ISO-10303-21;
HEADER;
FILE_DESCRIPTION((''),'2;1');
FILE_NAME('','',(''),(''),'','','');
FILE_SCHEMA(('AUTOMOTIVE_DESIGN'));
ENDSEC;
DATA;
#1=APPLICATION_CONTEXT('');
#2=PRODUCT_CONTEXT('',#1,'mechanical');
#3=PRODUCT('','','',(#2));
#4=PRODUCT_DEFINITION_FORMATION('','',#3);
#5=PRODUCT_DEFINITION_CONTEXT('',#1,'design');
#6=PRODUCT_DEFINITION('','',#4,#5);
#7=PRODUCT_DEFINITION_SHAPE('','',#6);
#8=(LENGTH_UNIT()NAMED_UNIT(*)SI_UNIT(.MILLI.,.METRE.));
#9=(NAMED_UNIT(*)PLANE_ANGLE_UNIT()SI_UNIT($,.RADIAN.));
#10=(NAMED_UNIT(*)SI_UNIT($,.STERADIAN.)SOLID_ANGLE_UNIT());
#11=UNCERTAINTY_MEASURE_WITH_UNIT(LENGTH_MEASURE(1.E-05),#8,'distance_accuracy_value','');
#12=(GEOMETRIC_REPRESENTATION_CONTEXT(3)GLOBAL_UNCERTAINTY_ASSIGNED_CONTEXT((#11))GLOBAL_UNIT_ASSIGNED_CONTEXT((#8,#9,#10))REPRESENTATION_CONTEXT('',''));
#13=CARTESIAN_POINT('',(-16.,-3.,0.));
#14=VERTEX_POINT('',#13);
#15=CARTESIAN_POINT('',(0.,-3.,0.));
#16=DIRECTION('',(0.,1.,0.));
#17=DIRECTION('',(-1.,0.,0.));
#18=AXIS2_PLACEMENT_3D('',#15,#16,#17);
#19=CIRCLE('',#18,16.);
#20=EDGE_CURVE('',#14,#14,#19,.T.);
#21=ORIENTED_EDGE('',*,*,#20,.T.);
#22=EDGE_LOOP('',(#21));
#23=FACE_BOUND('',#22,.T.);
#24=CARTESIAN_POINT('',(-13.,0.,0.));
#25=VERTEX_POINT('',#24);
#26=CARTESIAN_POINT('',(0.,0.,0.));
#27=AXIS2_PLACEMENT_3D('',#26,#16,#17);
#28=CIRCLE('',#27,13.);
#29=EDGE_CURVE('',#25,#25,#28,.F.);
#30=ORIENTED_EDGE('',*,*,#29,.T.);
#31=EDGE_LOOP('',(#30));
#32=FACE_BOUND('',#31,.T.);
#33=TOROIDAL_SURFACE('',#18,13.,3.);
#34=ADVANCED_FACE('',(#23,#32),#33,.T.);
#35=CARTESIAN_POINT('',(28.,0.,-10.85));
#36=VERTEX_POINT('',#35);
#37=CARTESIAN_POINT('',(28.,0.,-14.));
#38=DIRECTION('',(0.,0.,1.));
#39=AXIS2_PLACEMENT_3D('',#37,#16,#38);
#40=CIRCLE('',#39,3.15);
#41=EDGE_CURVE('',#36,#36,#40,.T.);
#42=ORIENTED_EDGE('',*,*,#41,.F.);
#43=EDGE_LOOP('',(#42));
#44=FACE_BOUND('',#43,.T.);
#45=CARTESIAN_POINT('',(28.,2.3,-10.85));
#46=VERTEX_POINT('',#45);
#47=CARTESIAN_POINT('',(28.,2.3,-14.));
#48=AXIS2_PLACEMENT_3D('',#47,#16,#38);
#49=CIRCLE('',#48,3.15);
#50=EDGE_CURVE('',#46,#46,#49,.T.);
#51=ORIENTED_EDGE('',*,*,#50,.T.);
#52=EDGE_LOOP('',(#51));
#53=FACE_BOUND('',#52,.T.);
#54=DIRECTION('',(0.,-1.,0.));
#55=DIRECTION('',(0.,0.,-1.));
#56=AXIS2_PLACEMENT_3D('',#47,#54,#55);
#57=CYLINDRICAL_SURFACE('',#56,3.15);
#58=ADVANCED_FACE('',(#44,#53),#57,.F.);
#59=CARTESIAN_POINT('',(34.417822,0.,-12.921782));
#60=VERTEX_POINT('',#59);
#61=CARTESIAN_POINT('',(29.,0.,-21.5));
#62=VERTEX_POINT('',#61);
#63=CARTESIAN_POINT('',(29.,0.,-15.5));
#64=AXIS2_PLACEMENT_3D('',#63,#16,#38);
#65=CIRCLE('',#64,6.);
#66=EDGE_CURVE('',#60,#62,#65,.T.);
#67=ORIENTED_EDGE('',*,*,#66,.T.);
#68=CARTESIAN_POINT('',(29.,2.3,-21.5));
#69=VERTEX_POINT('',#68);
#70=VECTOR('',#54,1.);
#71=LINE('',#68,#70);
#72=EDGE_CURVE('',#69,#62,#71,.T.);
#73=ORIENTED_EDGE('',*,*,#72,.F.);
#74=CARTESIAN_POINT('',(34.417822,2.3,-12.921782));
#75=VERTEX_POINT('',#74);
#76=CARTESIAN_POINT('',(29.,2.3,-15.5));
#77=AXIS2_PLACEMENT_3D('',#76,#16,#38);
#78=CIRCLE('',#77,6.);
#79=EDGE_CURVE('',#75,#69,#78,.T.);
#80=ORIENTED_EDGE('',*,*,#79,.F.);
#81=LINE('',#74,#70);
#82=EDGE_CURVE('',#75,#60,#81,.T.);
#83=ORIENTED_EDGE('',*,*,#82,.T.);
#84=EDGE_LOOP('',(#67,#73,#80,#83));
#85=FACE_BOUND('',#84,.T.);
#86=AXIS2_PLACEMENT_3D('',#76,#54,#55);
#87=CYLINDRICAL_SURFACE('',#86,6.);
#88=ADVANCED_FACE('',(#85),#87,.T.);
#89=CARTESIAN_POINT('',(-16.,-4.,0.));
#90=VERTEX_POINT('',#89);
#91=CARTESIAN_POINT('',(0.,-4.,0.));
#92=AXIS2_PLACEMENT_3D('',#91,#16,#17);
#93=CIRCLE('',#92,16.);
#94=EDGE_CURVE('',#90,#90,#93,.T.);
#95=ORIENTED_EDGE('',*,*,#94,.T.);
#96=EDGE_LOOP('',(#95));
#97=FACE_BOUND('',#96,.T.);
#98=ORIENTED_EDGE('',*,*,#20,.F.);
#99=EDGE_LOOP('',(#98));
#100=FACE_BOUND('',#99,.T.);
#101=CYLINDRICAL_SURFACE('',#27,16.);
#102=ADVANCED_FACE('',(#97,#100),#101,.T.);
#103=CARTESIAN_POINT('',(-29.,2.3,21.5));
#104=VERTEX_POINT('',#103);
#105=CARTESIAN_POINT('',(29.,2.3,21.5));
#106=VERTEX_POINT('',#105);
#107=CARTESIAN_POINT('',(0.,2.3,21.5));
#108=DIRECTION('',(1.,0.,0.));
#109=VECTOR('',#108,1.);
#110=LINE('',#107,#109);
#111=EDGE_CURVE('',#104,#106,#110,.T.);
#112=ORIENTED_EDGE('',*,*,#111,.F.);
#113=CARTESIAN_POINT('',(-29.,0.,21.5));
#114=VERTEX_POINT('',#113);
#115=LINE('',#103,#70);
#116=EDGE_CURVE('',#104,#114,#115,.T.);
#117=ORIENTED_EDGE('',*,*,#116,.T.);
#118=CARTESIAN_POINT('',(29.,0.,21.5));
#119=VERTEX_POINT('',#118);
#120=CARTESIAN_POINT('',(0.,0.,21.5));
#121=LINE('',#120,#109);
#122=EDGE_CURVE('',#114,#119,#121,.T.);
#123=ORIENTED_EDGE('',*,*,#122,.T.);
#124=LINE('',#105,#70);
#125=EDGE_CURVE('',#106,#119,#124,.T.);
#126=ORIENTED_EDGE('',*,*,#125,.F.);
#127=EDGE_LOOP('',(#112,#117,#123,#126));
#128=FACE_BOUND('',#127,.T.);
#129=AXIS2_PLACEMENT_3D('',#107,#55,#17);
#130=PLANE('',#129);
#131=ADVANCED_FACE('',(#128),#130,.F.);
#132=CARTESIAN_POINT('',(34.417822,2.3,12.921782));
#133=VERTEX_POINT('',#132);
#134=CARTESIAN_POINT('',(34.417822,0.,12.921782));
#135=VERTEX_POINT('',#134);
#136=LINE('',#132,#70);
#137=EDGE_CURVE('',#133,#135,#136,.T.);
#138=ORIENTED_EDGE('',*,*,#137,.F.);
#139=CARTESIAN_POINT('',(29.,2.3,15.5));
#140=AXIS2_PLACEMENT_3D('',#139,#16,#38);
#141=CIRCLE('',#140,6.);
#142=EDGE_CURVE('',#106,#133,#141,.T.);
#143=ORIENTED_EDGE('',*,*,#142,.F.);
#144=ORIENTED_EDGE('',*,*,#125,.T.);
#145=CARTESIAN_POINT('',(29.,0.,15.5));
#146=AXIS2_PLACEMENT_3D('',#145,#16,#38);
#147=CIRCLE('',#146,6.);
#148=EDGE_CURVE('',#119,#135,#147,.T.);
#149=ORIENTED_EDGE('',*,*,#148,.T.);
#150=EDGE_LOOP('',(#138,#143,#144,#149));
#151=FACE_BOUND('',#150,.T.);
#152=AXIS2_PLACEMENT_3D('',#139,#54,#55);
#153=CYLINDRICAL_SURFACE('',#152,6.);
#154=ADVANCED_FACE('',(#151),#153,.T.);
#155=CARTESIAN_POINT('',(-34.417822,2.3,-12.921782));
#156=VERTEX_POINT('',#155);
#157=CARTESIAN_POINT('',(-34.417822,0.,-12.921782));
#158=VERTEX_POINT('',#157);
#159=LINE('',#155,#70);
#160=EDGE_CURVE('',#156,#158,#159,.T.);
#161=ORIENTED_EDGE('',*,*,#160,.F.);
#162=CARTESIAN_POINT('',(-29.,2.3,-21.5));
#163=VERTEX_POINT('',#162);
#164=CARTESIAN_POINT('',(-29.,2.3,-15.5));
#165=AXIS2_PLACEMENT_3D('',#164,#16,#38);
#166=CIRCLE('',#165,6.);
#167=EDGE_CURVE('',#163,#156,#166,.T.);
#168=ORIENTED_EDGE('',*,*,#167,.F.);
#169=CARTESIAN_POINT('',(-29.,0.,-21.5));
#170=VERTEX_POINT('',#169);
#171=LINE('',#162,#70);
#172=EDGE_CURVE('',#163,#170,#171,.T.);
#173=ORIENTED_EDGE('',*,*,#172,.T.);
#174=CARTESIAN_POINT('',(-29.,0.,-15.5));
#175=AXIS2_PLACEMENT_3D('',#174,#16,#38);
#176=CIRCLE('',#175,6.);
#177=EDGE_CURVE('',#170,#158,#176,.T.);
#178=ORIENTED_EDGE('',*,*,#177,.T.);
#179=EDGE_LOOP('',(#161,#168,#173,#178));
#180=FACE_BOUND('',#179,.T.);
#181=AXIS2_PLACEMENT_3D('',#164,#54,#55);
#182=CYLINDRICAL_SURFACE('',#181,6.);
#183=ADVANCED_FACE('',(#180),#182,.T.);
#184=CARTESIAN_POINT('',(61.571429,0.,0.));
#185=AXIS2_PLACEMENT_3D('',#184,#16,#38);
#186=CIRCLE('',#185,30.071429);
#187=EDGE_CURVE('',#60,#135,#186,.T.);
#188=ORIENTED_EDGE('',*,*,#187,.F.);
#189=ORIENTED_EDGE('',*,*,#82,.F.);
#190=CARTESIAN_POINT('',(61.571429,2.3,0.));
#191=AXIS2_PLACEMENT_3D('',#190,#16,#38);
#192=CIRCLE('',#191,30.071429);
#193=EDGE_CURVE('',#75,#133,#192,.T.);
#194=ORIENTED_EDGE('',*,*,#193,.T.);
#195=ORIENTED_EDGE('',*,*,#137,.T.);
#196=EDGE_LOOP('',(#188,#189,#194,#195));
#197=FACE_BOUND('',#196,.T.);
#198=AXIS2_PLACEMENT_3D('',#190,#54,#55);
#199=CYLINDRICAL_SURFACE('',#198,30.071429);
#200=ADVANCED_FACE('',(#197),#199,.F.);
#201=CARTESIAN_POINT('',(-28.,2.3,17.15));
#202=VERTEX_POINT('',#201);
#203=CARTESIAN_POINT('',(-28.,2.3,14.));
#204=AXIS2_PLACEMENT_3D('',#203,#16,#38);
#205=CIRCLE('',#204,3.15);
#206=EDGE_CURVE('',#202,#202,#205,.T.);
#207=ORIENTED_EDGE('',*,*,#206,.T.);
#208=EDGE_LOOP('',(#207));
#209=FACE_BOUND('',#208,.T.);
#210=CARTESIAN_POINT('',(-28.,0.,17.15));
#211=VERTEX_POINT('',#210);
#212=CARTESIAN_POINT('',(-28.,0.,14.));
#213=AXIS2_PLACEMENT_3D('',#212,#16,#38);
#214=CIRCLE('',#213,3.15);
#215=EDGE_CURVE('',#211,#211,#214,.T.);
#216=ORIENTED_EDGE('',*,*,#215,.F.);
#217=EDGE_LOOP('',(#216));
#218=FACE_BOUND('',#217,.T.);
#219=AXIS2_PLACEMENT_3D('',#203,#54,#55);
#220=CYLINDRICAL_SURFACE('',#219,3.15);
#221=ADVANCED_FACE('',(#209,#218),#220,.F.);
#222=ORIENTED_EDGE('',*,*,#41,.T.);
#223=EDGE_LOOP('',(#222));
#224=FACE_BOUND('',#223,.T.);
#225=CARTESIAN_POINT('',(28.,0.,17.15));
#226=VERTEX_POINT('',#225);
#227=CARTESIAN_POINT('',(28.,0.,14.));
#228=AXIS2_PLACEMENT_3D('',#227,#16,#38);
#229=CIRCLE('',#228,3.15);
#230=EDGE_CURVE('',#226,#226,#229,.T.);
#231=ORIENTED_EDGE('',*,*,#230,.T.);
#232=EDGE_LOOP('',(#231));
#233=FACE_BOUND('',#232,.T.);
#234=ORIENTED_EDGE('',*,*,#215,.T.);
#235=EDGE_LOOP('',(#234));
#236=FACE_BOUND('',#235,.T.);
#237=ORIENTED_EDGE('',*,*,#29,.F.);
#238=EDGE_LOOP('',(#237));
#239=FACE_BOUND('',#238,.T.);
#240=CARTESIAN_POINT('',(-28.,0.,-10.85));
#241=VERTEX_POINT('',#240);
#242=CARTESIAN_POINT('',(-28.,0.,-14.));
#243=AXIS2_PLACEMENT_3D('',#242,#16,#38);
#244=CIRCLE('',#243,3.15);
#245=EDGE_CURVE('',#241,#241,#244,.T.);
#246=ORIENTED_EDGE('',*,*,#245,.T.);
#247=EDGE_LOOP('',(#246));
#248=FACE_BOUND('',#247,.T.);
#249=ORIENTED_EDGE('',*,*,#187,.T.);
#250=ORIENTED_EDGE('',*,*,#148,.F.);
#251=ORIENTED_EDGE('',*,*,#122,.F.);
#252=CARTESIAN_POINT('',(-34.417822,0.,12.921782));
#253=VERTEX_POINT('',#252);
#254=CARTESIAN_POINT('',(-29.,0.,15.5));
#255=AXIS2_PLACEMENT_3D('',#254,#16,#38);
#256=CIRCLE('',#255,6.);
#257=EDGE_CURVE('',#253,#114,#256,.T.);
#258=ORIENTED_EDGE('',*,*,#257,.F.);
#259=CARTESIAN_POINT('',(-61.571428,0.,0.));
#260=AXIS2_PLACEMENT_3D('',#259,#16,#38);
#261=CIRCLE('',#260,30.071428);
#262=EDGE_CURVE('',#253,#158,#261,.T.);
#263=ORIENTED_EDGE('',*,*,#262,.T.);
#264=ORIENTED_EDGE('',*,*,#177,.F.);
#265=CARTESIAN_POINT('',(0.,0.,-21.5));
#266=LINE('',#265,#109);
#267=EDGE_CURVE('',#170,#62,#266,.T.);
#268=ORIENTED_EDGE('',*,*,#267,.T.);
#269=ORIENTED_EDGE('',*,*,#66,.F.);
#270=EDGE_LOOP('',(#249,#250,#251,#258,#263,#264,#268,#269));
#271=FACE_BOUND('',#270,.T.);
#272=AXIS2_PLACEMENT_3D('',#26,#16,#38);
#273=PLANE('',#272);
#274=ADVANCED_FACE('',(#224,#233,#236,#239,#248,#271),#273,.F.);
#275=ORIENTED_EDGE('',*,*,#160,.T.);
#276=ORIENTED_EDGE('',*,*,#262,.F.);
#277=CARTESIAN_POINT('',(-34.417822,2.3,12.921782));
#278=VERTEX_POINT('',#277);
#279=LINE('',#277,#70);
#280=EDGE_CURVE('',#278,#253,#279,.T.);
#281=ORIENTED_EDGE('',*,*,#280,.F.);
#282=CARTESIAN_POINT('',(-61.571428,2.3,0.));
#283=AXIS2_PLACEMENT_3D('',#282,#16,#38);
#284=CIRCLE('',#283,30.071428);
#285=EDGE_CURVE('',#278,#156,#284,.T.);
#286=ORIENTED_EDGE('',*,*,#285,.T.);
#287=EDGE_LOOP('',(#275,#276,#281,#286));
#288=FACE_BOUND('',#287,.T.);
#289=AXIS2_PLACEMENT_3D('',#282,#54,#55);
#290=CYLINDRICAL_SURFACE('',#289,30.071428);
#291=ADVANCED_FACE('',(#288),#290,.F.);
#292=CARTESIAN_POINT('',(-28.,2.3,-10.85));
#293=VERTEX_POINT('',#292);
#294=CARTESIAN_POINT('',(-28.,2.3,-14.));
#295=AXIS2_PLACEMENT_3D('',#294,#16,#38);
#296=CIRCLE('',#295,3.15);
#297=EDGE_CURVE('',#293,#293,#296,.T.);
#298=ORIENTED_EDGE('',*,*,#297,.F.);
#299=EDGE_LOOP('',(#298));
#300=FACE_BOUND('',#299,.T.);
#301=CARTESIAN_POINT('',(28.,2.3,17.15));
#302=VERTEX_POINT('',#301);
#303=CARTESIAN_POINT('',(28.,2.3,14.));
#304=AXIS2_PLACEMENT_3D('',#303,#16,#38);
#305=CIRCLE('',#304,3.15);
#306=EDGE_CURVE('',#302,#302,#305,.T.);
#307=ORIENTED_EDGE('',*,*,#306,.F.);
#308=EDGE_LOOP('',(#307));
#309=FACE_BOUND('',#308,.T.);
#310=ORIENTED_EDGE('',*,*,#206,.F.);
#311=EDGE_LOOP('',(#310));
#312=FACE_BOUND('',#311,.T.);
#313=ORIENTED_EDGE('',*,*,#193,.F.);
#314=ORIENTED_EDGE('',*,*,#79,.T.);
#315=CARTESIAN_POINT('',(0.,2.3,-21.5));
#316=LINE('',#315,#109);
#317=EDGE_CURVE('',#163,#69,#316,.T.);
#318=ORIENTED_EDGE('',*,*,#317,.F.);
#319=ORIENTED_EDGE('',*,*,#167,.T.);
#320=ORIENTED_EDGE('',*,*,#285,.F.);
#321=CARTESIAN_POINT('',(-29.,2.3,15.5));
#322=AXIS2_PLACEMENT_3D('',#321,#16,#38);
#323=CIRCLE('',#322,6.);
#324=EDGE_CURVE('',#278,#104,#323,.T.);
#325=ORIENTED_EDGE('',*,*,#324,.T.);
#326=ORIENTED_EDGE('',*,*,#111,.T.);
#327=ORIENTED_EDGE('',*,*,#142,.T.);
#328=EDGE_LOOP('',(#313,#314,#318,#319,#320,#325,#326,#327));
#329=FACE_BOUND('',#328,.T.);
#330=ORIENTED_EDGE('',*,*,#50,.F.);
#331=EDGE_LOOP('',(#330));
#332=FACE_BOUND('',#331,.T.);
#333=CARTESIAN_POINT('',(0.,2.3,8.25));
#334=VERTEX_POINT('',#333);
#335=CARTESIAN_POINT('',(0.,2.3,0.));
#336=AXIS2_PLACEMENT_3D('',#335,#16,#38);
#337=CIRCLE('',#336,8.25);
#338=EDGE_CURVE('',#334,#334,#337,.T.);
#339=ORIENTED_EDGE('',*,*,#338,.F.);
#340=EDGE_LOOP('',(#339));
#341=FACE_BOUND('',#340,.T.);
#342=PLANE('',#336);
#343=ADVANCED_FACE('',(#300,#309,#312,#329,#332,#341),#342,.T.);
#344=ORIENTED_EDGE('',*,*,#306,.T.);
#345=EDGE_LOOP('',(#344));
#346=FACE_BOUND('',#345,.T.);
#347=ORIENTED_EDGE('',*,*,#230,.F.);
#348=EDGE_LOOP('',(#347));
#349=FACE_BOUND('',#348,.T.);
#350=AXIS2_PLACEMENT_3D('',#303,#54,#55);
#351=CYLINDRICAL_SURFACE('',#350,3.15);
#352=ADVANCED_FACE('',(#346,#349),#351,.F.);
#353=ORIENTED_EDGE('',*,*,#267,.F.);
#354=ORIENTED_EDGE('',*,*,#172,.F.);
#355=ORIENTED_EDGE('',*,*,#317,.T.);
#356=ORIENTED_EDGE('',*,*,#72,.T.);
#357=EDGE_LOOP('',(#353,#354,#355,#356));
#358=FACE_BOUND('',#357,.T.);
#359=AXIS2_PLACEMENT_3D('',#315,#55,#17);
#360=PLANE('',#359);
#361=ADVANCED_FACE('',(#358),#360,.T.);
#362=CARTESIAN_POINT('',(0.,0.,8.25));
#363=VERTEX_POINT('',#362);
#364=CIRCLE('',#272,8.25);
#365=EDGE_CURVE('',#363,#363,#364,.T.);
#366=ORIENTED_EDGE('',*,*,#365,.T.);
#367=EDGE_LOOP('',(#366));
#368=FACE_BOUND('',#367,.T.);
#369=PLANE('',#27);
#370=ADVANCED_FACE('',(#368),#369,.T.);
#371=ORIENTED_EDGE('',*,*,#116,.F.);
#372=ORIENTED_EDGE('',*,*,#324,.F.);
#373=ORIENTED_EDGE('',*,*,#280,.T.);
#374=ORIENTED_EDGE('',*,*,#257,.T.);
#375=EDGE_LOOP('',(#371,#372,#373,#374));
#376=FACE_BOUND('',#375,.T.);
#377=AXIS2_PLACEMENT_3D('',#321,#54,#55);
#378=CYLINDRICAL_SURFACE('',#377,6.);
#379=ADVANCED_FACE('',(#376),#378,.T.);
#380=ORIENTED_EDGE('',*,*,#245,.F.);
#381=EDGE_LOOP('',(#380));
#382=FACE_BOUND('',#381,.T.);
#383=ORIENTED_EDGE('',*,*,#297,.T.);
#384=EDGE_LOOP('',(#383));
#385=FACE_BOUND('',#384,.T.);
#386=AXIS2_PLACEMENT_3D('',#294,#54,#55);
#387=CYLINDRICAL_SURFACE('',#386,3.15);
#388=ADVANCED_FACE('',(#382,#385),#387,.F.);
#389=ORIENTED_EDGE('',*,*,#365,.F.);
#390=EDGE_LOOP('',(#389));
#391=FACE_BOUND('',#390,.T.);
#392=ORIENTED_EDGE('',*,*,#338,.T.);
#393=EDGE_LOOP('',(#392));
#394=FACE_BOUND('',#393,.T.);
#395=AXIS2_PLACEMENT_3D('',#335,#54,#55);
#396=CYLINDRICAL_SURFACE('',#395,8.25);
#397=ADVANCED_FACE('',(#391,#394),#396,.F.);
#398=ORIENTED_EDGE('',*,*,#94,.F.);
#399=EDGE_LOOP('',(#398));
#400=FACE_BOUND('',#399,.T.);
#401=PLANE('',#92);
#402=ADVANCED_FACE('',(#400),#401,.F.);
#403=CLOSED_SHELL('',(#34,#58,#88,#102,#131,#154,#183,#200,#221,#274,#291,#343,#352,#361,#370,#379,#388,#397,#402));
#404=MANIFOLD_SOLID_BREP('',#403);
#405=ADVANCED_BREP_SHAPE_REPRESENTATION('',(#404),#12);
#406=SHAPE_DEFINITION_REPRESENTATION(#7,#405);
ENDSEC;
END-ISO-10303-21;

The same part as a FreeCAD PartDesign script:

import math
import FreeCAD as App
import Part
import Sketcher

doc = App.newDocument("Part")
body = doc.addObject("PartDesign::Body", "Body")

# Sketch on XZ plane
sketch1 = body.newObject("Sketcher::SketchObject", "Sketch")
sketch1.AttachmentSupport = (doc.getObject("XZ_Plane"), [""])
sketch1.MapMode = "FlatFace"
sketch1.addGeometry([
    Part.LineSegment(App.Vector(29, -21.5, 0), App.Vector(-29, -21.5, 0)),  # 0
    Part.ArcOfCircle(Part.Circle(App.Vector(-29, -15.5, 0), App.Vector(0, 0, 1), 6), math.radians(155), math.radians(270)),  # 1
    Part.ArcOfCircle(Part.Circle(App.Vector(-61.6, 0, 0), App.Vector(0, 0, 1), 30.1), math.radians(-25), math.radians(25)),  # 2
    Part.ArcOfCircle(Part.Circle(App.Vector(-29, 15.5, 0), App.Vector(0, 0, 1), 6), math.radians(90), math.radians(205)),  # 3
    Part.LineSegment(App.Vector(-29, 21.5, 0), App.Vector(29, 21.5, 0)),  # 4
    Part.ArcOfCircle(Part.Circle(App.Vector(29, 15.5, 0), App.Vector(0, 0, 1), 6), math.radians(-25), math.radians(90)),  # 5
    Part.ArcOfCircle(Part.Circle(App.Vector(61.6, 0, 0), App.Vector(0, 0, 1), 30.1), math.radians(155), math.radians(205)),  # 6
    Part.ArcOfCircle(Part.Circle(App.Vector(29, -15.5, 0), App.Vector(0, 0, 1), 6), math.radians(-90), math.radians(25)),  # 7
    Part.Circle(App.Vector(28, 14, 0), App.Vector(0, 0, 1), 3.1),  # 8
    Part.Circle(App.Vector(-28, 14, 0), App.Vector(0, 0, 1), 3.1),  # 9
    Part.Circle(App.Vector(28, -14, 0), App.Vector(0, 0, 1), 3.1),  # 10
    Part.Circle(App.Vector(0, 0, 0), App.Vector(0, 0, 1), 8.2),  # 11
    Part.Circle(App.Vector(-28, -14, 0), App.Vector(0, 0, 1), 3.1),  # 12
], False)
sketch1.addConstraint([
    Sketcher.Constraint("Tangent", 0, 2, 1, 2),
    Sketcher.Constraint("Tangent", 1, 1, 2, 1),
    Sketcher.Constraint("Tangent", 2, 2, 3, 2),
    Sketcher.Constraint("Tangent", 3, 1, 4, 1),
    Sketcher.Constraint("Tangent", 4, 2, 5, 2),
    Sketcher.Constraint("Tangent", 5, 1, 6, 1),
    Sketcher.Constraint("Tangent", 6, 2, 7, 2),
    Sketcher.Constraint("Tangent", 7, 1, 0, 1),
    Sketcher.Constraint("Horizontal", 0),
    Sketcher.Constraint("Horizontal", 4),
    Sketcher.Constraint("Coincident", 11, 3, -1, 1),
    Sketcher.Constraint("Equal", 1, 3),
    Sketcher.Constraint("Equal", 3, 5),
    Sketcher.Constraint("Equal", 2, 6),
    Sketcher.Constraint("Equal", 5, 7),
    Sketcher.Constraint("Equal", 8, 9),
    Sketcher.Constraint("Equal", 9, 10),
    Sketcher.Constraint("Equal", 10, 12),
    Sketcher.Constraint("Symmetric", 1, 3, 5, 3, -1, 1),
    Sketcher.Constraint("Symmetric", 9, 3, 10, 3, -1, 1),
    Sketcher.Constraint("Symmetric", 8, 3, 12, 3, -1, 1),
    Sketcher.Constraint("Symmetric", 2, 3, 6, 3, -2),
    Sketcher.Constraint("Symmetric", 8, 3, 9, 3, -2),
    Sketcher.Constraint("Radius", 1, 6.0),
    Sketcher.Constraint("Diameter", 8, 6.3),
    Sketcher.Constraint("Diameter", 11, 16.5),
    Sketcher.Constraint("DistanceX", 0, 2, 0, 1, 58.0),
    Sketcher.Constraint("DistanceX", -1, 1, 8, 3, 28.0),
    Sketcher.Constraint("DistanceY", -1, 1, 8, 3, 14.0),
    Sketcher.Constraint("DistanceY", 1, 3, 3, 3, 31.0),
    Sketcher.Constraint("Radius", 2, 30.071428),
])
pad1 = body.newObject("PartDesign::Pad", "Pad")
pad1.Profile = sketch1
pad1.Length = 2.3
pad1.Reversed = True

# Sketch on XY plane
sketch2 = body.newObject("Sketcher::SketchObject", "Sketch001")
sketch2.AttachmentSupport = (doc.getObject("XY_Plane"), [""])
sketch2.MapMode = "FlatFace"
sketch2.addGeometry([
    Part.LineSegment(App.Vector(13, 0, 0), App.Vector(0, 0, 0)),  # 0
    Part.LineSegment(App.Vector(0, 0, 0), App.Vector(0, -4, 0)),  # 1
    Part.LineSegment(App.Vector(0, -4, 0), App.Vector(16, -4, 0)),  # 2
    Part.LineSegment(App.Vector(16, -4, 0), App.Vector(16, -3, 0)),  # 3
    Part.ArcOfCircle(Part.Circle(App.Vector(13, -3, 0), App.Vector(0, 0, 1), 3), math.radians(0), math.radians(90)),  # 4
], False)
sketch2.addConstraint([
    Sketcher.Constraint("Coincident", 0, 2, 1, 1),
    Sketcher.Constraint("Coincident", 1, 2, 2, 1),
    Sketcher.Constraint("Coincident", 2, 2, 3, 1),
    Sketcher.Constraint("Tangent", 3, 2, 4, 1),
    Sketcher.Constraint("Tangent", 4, 2, 0, 1),
    Sketcher.Constraint("Horizontal", 0),
    Sketcher.Constraint("Vertical", 1),
    Sketcher.Constraint("Horizontal", 2),
    Sketcher.Constraint("Vertical", 3),
    Sketcher.Constraint("Coincident", 0, 2, -1, 1),
    Sketcher.Constraint("Radius", 4, 3.0),
    Sketcher.Constraint("DistanceX", 0, 2, 0, 1, 13.0),
    Sketcher.Constraint("DistanceY", 1, 2, 1, 1, 4.0),
])
revolution = body.newObject("PartDesign::Revolution", "Revolution")
revolution.Profile = sketch2
revolution.ReferenceAxis = (sketch2, ["V_Axis"])
revolution.Angle = 360

doc.recompute()
